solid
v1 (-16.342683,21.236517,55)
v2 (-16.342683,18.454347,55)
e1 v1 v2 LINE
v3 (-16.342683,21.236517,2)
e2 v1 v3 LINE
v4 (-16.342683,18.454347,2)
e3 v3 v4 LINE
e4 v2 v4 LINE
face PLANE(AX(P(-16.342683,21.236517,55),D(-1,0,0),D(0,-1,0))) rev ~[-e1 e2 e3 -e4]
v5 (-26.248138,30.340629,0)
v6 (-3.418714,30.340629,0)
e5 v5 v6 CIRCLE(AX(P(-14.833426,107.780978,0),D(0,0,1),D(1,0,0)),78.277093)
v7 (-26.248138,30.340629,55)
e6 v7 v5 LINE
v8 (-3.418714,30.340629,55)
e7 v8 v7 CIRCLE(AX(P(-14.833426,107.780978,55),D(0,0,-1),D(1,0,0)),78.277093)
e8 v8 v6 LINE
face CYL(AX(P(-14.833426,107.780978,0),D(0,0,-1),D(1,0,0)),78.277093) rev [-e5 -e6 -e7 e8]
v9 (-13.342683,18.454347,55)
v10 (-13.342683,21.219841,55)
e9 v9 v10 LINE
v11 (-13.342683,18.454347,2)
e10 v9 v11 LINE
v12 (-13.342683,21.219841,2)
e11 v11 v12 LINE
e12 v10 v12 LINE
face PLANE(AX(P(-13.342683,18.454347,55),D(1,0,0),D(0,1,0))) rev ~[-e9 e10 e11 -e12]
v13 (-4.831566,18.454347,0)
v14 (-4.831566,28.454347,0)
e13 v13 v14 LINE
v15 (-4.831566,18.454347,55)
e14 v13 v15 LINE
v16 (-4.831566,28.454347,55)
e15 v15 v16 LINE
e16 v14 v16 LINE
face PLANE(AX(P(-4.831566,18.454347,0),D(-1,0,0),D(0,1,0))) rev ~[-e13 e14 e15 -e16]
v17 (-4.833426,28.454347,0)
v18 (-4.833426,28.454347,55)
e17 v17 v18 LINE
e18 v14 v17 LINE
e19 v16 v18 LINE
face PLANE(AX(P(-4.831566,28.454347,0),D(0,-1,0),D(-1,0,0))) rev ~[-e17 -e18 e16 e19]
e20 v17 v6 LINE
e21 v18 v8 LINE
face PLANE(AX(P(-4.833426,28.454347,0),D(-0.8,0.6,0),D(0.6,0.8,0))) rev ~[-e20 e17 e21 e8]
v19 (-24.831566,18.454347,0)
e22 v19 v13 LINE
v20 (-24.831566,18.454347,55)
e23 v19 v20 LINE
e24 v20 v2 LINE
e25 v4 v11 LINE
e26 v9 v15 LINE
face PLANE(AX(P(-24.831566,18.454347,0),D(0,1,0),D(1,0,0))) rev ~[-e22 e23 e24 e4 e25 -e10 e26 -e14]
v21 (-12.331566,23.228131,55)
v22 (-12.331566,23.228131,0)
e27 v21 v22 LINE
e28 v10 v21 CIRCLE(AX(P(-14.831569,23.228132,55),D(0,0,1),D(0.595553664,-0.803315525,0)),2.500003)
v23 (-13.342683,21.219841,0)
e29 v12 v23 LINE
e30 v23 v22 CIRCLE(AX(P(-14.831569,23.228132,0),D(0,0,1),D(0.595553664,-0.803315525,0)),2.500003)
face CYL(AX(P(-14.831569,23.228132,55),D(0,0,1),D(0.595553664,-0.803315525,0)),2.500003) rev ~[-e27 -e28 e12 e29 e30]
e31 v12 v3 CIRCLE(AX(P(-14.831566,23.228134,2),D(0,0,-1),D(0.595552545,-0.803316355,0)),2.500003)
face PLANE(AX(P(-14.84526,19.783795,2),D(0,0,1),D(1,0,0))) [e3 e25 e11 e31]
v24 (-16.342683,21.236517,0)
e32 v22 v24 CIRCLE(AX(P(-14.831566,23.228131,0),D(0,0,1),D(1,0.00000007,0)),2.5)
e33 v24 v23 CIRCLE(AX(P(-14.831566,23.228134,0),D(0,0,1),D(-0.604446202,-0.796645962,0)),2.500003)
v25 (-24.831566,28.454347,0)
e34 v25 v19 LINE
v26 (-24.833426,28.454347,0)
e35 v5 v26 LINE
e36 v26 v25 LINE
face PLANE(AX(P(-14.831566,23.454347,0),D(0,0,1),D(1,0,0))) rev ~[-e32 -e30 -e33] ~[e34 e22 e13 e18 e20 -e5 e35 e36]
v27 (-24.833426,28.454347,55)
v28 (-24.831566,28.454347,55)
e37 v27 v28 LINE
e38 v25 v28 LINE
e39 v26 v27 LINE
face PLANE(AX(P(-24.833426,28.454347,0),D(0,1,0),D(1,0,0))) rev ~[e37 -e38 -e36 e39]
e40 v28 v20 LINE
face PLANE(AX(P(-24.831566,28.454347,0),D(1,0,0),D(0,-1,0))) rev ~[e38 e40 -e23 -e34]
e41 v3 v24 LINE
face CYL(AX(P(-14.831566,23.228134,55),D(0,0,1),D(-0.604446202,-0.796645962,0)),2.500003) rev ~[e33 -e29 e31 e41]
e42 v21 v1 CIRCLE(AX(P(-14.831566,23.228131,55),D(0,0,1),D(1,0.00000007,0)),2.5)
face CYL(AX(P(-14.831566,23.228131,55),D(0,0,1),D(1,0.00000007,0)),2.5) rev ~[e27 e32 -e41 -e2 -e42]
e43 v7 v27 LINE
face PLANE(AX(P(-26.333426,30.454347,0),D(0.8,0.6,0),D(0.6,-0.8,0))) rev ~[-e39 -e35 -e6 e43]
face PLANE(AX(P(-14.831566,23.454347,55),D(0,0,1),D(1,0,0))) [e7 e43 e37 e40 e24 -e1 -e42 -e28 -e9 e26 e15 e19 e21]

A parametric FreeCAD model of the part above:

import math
import FreeCAD as App
import Part
import Sketcher
from FreeCAD import Vector

doc = App.newDocument("Part")
body = doc.addObject("PartDesign::Body", "Body")

sketch1 = doc.addObject("Sketcher::SketchObject", "Sketch")
body.addObject(sketch1)
sketch1.AttachmentSupport = (doc.XY_Plane, [""])
sketch1.MapMode = "FlatFace"
sketch1.addGeometry(Part.LineSegment(Vector(-24.831566, 28.454347, 0), Vector(-24.831566, 18.454347, 0)), False)
sketch1.addGeometry(Part.LineSegment(Vector(-24.831566, 18.454347, 0), Vector(-4.831566, 18.454347, 0)), False)
sketch1.addGeometry(Part.LineSegment(Vector(-4.831566, 18.454347, 0), Vector(-4.831566, 28.454347, 0)), False)
sketch1.addGeometry(Part.LineSegment(Vector(-4.831566, 28.454347, 0), Vector(-4.833426, 28.454347, 0)), False)
sketch1.addGeometry(Part.LineSegment(Vector(-4.833426, 28.454347, 0), Vector(-3.333426, 30.454347, 0)), False)
sketch1.addGeometry(Part.LineSegment(Vector(-3.333426, 30.454347, 0), Vector(-26.333426, 30.454347, 0)), False)
sketch1.addGeometry(Part.LineSegment(Vector(-26.333426, 30.454347, 0), Vector(-24.833426, 28.454347, 0)), False)
sketch1.addGeometry(Part.LineSegment(Vector(-24.833426, 28.454347, 0), Vector(-24.831566, 28.454347, 0)), False)
sketch1.addConstraint(Sketcher.Constraint("Coincident", 0, 2, 1, 1))
sketch1.addConstraint(Sketcher.Constraint("Coincident", 1, 2, 2, 1))
sketch1.addConstraint(Sketcher.Constraint("Coincident", 2, 2, 3, 1))
sketch1.addConstraint(Sketcher.Constraint("Coincident", 3, 2, 4, 1))
sketch1.addConstraint(Sketcher.Constraint("Coincident", 4, 2, 5, 1))
sketch1.addConstraint(Sketcher.Constraint("Coincident", 5, 2, 6, 1))
sketch1.addConstraint(Sketcher.Constraint("Coincident", 6, 2, 7, 1))
sketch1.addConstraint(Sketcher.Constraint("Coincident", 7, 2, 0, 1))
sketch1.addConstraint(Sketcher.Constraint("Vertical", 0))
sketch1.addConstraint(Sketcher.Constraint("Horizontal", 1))
sketch1.addConstraint(Sketcher.Constraint("Vertical", 2))
sketch1.addConstraint(Sketcher.Constraint("Horizontal", 3))
sketch1.addConstraint(Sketcher.Constraint("Horizontal", 5))
sketch1.addConstraint(Sketcher.Constraint("Horizontal", 7))
sketch1.addConstraint(Sketcher.Constraint("Horizontal", 3, 2, 6, 2))
sketch1.addConstraint(Sketcher.Constraint("Equal", 3, 7))
sketch1.addConstraint(Sketcher.Constraint("Equal", 4, 6))
sketch1.addConstraint(Sketcher.Constraint("DistanceX", 1, 1, 1, 2, 20.0))
sketch1.addConstraint(Sketcher.Constraint("DistanceX", 5, 2, 5, 1, 23.0))
sketch1.addConstraint(Sketcher.Constraint("DistanceY", 0, 2, 0, 1, 10.0))
sketch1.addConstraint(Sketcher.Constraint("DistanceY", 2, 2, 4, 2, 2.0))
sketch1.addConstraint(Sketcher.Constraint("DistanceX", 3, 2, 3, 1, 0.00186))
sketch1.addConstraint(Sketcher.Constraint("DistanceX", 0, 2, -1, 1, 24.831566))
sketch1.addConstraint(Sketcher.Constraint("DistanceY", -1, 1, 0, 2, 18.454347))
pad1 = doc.addObject("PartDesign::Pad", "Pad")
body.addObject(pad1)
pad1.Profile = sketch1
pad1.Length = 55

sketch2 = doc.addObject("Sketcher::SketchObject", "Sketch001")
body.addObject(sketch2)
sketch2.AttachmentSupport = (doc.XY_Plane, [""])
sketch2.MapMode = "FlatFace"
sketch2.addGeometry(Part.Circle(Vector(-15, 108, 0), Vector(0, 0, 1), 78), False)
sketch2.addConstraint(Sketcher.Constraint("Diameter", 0, 156.554186))
sketch2.addConstraint(Sketcher.Constraint("DistanceY", -1, 1, 0, 3, 107.780978))
sketch2.addConstraint(Sketcher.Constraint("DistanceX", 0, 3, -1, 1, 14.833426))
pocket1 = doc.addObject("PartDesign::Pocket", "Pocket")
body.addObject(pocket1)
pocket1.Profile = sketch2
pocket1.Length = 60
pocket1.Reversed = True

sketch3 = doc.addObject("Sketcher::SketchObject", "Sketch002")
body.addObject(sketch3)
sketch3.AttachmentSupport = (doc.XY_Plane, [""])
sketch3.MapMode = "FlatFace"
sketch3.AttachmentOffset = App.Placement(Vector(0, 0, 55), App.Rotation())
sketch3.addGeometry(Part.ArcOfCircle(Part.Circle(Vector(-14.8, 23.2, 0), Vector(0, 0, 1), 2.5), math.radians(-53), math.radians(0)), False)
sketch3.addGeometry(Part.ArcOfCircle(Part.Circle(Vector(-14.8, 23.2, 0), Vector(0, 0, 1), 2.5), math.radians(0), math.radians(233)), False)
sketch3.addGeometry(Part.ArcOfCircle(Part.Circle(Vector(-14.8, 23.2, 0), Vector(0, 0, 1), 2.5), math.radians(-127), math.radians(-53)), False)
sketch3.addConstraint(Sketcher.Constraint("Tangent", 0, 2, 1, 1))
sketch3.addConstraint(Sketcher.Constraint("Tangent", 1, 2, 2, 1))
sketch3.addConstraint(Sketcher.Constraint("Tangent", 2, 2, 0, 1))
sketch3.addConstraint(Sketcher.Constraint("Horizontal", 1, 3, 0, 2))
sketch3.addConstraint(Sketcher.Constraint("Radius", 1, 2.5))
sketch3.addConstraint(Sketcher.Constraint("DistanceX", 1, 2, 2, 2, 3.0))
sketch3.addConstraint(Sketcher.Constraint("DistanceX", 0, 3, -1, 1, 14.831569))
sketch3.addConstraint(Sketcher.Constraint("DistanceY", -1, 1, 1, 3, 23.228131))
sketch3.addConstraint(Sketcher.Constraint("DistanceY", -1, 1, 2, 2, 21.219841))
pocket2 = doc.addObject("PartDesign::Pocket", "Pocket001")
body.addObject(pocket2)
pocket2.Profile = sketch3
pocket2.Length = 60

sketch4 = doc.addObject("Sketcher::SketchObject", "Sketch003")
body.addObject(sketch4)
sketch4.AttachmentSupport = (doc.XY_Plane, [""])
sketch4.MapMode = "FlatFace"
sketch4.AttachmentOffset = App.Placement(Vector(0, 0, 55), App.Rotation())
sketch4.addGeometry(Part.ArcOfCircle(Part.Circle(Vector(-14.8, 23.2, 0), Vector(0, 0, 1), 2.5), math.radians(-127), math.radians(-53)), False)
sketch4.addGeometry(Part.LineSegment(Vector(-16.3, 21.2, 0), Vector(-16.3, 18.5, 0)), False)
sketch4.addGeometry(Part.LineSegment(Vector(-16.3, 18.5, 0), Vector(-13.3, 18.5, 0)), False)
sketch4.addGeometry(Part.LineSegment(Vector(-13.3, 18.5, 0), Vector(-13.3, 21.2, 0)), False)
sketch4.addConstraint(Sketcher.Constraint("Coincident", 0, 1, 1, 1))
sketch4.addConstraint(Sketcher.Constraint("Coincident", 1, 2, 2, 1))
sketch4.addConstraint(Sketcher.Constraint("Coincident", 2, 2, 3, 1))
sketch4.addConstraint(Sketcher.Constraint("Coincident", 3, 2, 0, 2))
sketch4.addConstraint(Sketcher.Constraint("Vertical", 1))
sketch4.addConstraint(Sketcher.Constraint("Horizontal", 2))
sketch4.addConstraint(Sketcher.Constraint("Vertical", 3))
sketch4.addConstraint(Sketcher.Constraint("DistanceX", 2, 1, 2, 2, 3.0))
sketch4.addConstraint(Sketcher.Constraint("Radius", 0, 2.500003))
sketch4.addConstraint(Sketcher.Constraint("DistanceY", 1, 2, 1, 1, 2.78217))
sketch4.addConstraint(Sketcher.Constraint("DistanceY", 3, 1, 3, 2, 2.765494))
sketch4.addConstraint(Sketcher.Constraint("DistanceY", -1, 1, 3, 2, 21.219841))
sketch4.addConstraint(Sketcher.Constraint("DistanceX", 0, 3, -1, 1, 14.831566))
pocket3 = doc.addObject("PartDesign::Pocket", "Pocket002")
body.addObject(pocket3)
pocket3.Profile = sketch4
pocket3.Length = 53

doc.recompute()
